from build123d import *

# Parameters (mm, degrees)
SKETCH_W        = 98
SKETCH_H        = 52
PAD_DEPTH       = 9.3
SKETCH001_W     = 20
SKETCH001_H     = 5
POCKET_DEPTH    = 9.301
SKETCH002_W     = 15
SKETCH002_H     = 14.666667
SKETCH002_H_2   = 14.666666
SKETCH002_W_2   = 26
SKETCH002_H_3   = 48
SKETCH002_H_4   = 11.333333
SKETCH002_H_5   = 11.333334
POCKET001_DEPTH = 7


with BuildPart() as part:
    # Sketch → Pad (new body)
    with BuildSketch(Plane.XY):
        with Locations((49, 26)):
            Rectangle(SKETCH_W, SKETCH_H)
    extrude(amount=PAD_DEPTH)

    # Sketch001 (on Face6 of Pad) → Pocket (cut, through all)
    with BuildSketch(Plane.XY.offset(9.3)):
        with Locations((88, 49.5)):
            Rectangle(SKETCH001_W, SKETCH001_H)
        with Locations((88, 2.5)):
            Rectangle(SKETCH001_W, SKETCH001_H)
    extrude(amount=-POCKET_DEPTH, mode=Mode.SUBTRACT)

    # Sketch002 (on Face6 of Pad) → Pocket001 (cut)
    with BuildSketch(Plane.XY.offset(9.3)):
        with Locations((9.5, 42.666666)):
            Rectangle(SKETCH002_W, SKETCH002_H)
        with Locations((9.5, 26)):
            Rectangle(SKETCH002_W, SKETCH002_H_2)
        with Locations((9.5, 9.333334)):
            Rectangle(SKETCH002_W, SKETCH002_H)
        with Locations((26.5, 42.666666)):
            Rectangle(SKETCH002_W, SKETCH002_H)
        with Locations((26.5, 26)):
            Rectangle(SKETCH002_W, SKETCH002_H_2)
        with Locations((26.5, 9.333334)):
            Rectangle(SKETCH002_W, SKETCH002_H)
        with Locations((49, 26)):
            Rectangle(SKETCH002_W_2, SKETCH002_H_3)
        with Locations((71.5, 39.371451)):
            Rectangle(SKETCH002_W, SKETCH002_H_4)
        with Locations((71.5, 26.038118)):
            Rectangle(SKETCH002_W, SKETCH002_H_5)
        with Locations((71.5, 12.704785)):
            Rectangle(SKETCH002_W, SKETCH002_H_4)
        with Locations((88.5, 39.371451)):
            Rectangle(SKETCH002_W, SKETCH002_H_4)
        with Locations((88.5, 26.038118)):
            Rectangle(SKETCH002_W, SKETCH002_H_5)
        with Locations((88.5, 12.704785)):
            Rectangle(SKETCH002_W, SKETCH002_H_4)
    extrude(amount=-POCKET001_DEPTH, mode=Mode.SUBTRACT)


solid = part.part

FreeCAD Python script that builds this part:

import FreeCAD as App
import Part
import Sketcher

V = App.Vector
Q = App.Units.Quantity

doc = App.newDocument("Part")
body = doc.addObject("PartDesign::Body", "Body")

sketch1 = body.newObject("Sketcher::SketchObject", "Sketch")
sketch1.AttachmentSupport = (doc.getObject("XY_Plane"), [""])
sketch1.MapMode = "FlatFace"
sketch1.addGeometry(Part.LineSegment(V(0, 52, 0), V(0, 0, 0)), False)
sketch1.addGeometry(Part.LineSegment(V(0, 0, 0), V(98, 0, 0)), False)
sketch1.addGeometry(Part.LineSegment(V(98, 0, 0), V(98, 52, 0)), False)
sketch1.addGeometry(Part.LineSegment(V(98, 52, 0), V(0, 52, 0)), False)
sketch1.addConstraint(Sketcher.Constraint("Coincident", 0, 2, 1, 1))
sketch1.addConstraint(Sketcher.Constraint("Coincident", 1, 2, 2, 1))
sketch1.addConstraint(Sketcher.Constraint("Coincident", 2, 2, 3, 1))
sketch1.addConstraint(Sketcher.Constraint("Coincident", 3, 2, 0, 1))
sketch1.addConstraint(Sketcher.Constraint("Vertical", 0))
sketch1.addConstraint(Sketcher.Constraint("Horizontal", 1))
sketch1.addConstraint(Sketcher.Constraint("Vertical", 2))
sketch1.addConstraint(Sketcher.Constraint("Horizontal", 3))
sketch1.addConstraint(Sketcher.Constraint("Coincident", 0, 2, -1, 1))
sketch1.addConstraint(Sketcher.Constraint("DistanceX", 1, 1, 1, 2, Q("98 mm")))
sketch1.addConstraint(Sketcher.Constraint("DistanceY", 0, 2, 0, 1, Q("52 mm")))
pad1 = body.newObject("PartDesign::Pad", "Pad")
pad1.Profile = sketch1
pad1.Length = 9.3

sketch2 = body.newObject("Sketcher::SketchObject", "Sketch001")
sketch2.AttachmentSupport = (doc.getObject("XY_Plane"), [""])
sketch2.MapMode = "FlatFace"
sketch2.AttachmentOffset = App.Placement(V(0, 0, 9.3), App.Rotation())
sketch2.addGeometry(Part.LineSegment(V(78, 52, 0), V(78, 47, 0)), False)
sketch2.addGeometry(Part.LineSegment(V(78, 47, 0), V(98, 47, 0)), False)
sketch2.addGeometry(Part.LineSegment(V(98, 47, 0), V(98, 52, 0)), False)
sketch2.addGeometry(Part.LineSegment(V(98, 52, 0), V(78, 52, 0)), False)
sketch2.addGeometry(Part.LineSegment(V(78, 5, 0), V(78, 0, 0)), False)
sketch2.addGeometry(Part.LineSegment(V(78, 0, 0), V(98, 0, 0)), False)
sketch2.addGeometry(Part.LineSegment(V(98, 0, 0), V(98, 5, 0)), False)
sketch2.addGeometry(Part.LineSegment(V(98, 5, 0), V(78, 5, 0)), False)
sketch2.addConstraint(Sketcher.Constraint("Coincident", 0, 2, 1, 1))
sketch2.addConstraint(Sketcher.Constraint("Coincident", 1, 2, 2, 1))
sketch2.addConstraint(Sketcher.Constraint("Coincident", 2, 2, 3, 1))
sketch2.addConstraint(Sketcher.Constraint("Coincident", 3, 2, 0, 1))
sketch2.addConstraint(Sketcher.Constraint("Coincident", 4, 2, 5, 1))
sketch2.addConstraint(Sketcher.Constraint("Coincident", 5, 2, 6, 1))
sketch2.addConstraint(Sketcher.Constraint("Coincident", 6, 2, 7, 1))
sketch2.addConstraint(Sketcher.Constraint("Coincident", 7, 2, 4, 1))
sketch2.addConstraint(Sketcher.Constraint("Vertical", 0))
sketch2.addConstraint(Sketcher.Constraint("Horizontal", 1))
sketch2.addConstraint(Sketcher.Constraint("Vertical", 2))
sketch2.addConstraint(Sketcher.Constraint("Horizontal", 3))
sketch2.addConstraint(Sketcher.Constraint("Vertical", 4))
sketch2.addConstraint(Sketcher.Constraint("Horizontal", 5))
sketch2.addConstraint(Sketcher.Constraint("Vertical", 6))
sketch2.addConstraint(Sketcher.Constraint("Horizontal", 7))
sketch2.addConstraint(Sketcher.Constraint("PointOnObject", 4, 2, -1))
sketch2.addConstraint(Sketcher.Constraint("Vertical", 3, 2, 4, 2))
sketch2.addConstraint(Sketcher.Constraint("Vertical", 2, 2, 5, 2))
sketch2.addConstraint(Sketcher.Constraint("Equal", 2, 4))
sketch2.addConstraint(Sketcher.Constraint("DistanceX", 1, 1, 1, 2, Q("20 mm")))
sketch2.addConstraint(Sketcher.Constraint("DistanceY", 0, 2, 0, 1, Q("5 mm")))
sketch2.addConstraint(Sketcher.Constraint("DistanceX", -1, 1, 0, 2, Q("78 mm")))
sketch2.addConstraint(Sketcher.Constraint("DistanceY", -1, 1, 0, 2, Q("47 mm")))
pocket1 = body.newObject("PartDesign::Pocket", "Pocket")
pocket1.Profile = sketch2
pocket1.Type = "ThroughAll"

sketch3 = body.newObject("Sketcher::SketchObject", "Sketch002")
sketch3.AttachmentSupport = (doc.getObject("XY_Plane"), [""])
sketch3.MapMode = "FlatFace"
sketch3.AttachmentOffset = App.Placement(V(0, 0, 9.3), App.Rotation())
sketch3.addGeometry(Part.LineSegment(V(2, 50, 0), V(2, 35, 0)), False)
sketch3.addGeometry(Part.LineSegment(V(2, 35, 0), V(17, 35, 0)), False)
sketch3.addGeometry(Part.LineSegment(V(17, 35, 0), V(17, 50, 0)), False)
sketch3.addGeometry(Part.LineSegment(V(17, 50, 0), V(2, 50, 0)), False)
sketch3.addGeometry(Part.LineSegment(V(2, 33, 0), V(2, 19, 0)), False)
sketch3.addGeometry(Part.LineSegment(V(2, 19, 0), V(17, 19, 0)), False)
sketch3.addGeometry(Part.LineSegment(V(17, 19, 0), V(17, 33, 0)), False)
sketch3.addGeometry(Part.LineSegment(V(17, 33, 0), V(2, 33, 0)), False)
sketch3.addGeometry(Part.LineSegment(V(2, 17, 0), V(2, 2, 0)), False)
sketch3.addGeometry(Part.LineSegment(V(2, 2, 0), V(17, 2, 0)), False)
sketch3.addGeometry(Part.LineSegment(V(17, 2, 0), V(17, 17, 0)), False)
sketch3.addGeometry(Part.LineSegment(V(17, 17, 0), V(2, 17, 0)), False)
sketch3.addGeometry(Part.LineSegment(V(19, 50, 0), V(19, 35, 0)), False)
sketch3.addGeometry(Part.LineSegment(V(19, 35, 0), V(34, 35, 0)), False)
sketch3.addGeometry(Part.LineSegment(V(34, 35, 0), V(34, 50, 0)), False)
sketch3.addGeometry(Part.LineSegment(V(34, 50, 0), V(19, 50, 0)), False)
sketch3.addGeometry(Part.LineSegment(V(19, 33, 0), V(19, 19, 0)), False)
sketch3.addGeometry(Part.LineSegment(V(19, 19, 0), V(34, 19, 0)), False)
sketch3.addGeometry(Part.LineSegment(V(34, 19, 0), V(34, 33, 0)), False)
sketch3.addGeometry(Part.LineSegment(V(34, 33, 0), V(19, 33, 0)), False)
sketch3.addGeometry(Part.LineSegment(V(19, 17, 0), V(19, 2, 0)), False)
sketch3.addGeometry(Part.LineSegment(V(19, 2, 0), V(34, 2, 0)), False)
sketch3.addGeometry(Part.LineSegment(V(34, 2, 0), V(34, 17, 0)), False)
sketch3.addGeometry(Part.LineSegment(V(34, 17, 0), V(19, 17, 0)), False)
sketch3.addGeometry(Part.LineSegment(V(36, 50, 0), V(36, 2, 0)), False)
sketch3.addGeometry(Part.LineSegment(V(36, 2, 0), V(62, 2, 0)), False)
sketch3.addGeometry(Part.LineSegment(V(62, 2, 0), V(62, 50, 0)), False)
sketch3.addGeometry(Part.LineSegment(V(62, 50, 0), V(36, 50, 0)), False)
sketch3.addGeometry(Part.LineSegment(V(64, 45, 0), V(64, 34, 0)), False)
sketch3.addGeometry(Part.LineSegment(V(64, 34, 0), V(79, 34, 0)), False)
sketch3.addGeometry(Part.LineSegment(V(79, 34, 0), V(79, 45, 0)), False)
sketch3.addGeometry(Part.LineSegment(V(79, 45, 0), V(64, 45, 0)), False)
sketch3.addGeometry(Part.LineSegment(V(64, 32, 0), V(64, 20, 0)), False)
sketch3.addGeometry(Part.LineSegment(V(64, 20, 0), V(79, 20, 0)), False)
sketch3.addGeometry(Part.LineSegment(V(79, 20, 0), V(79, 32, 0)), False)
sketch3.addGeometry(Part.LineSegment(V(79, 32, 0), V(64, 32, 0)), False)
sketch3.addGeometry(Part.LineSegment(V(64, 18, 0), V(64, 7, 0)), False)
sketch3.addGeometry(Part.LineSegment(V(64, 7, 0), V(79, 7, 0)), False)
sketch3.addGeometry(Part.LineSegment(V(79, 7, 0), V(79, 18, 0)), False)
sketch3.addGeometry(Part.LineSegment(V(79, 18, 0), V(64, 18, 0)), False)
sketch3.addGeometry(Part.LineSegment(V(81, 45, 0), V(81, 34, 0)), False)
sketch3.addGeometry(Part.LineSegment(V(81, 34, 0), V(96, 34, 0)), False)
sketch3.addGeometry(Part.LineSegment(V(96, 34, 0), V(96, 45, 0)), False)
sketch3.addGeometry(Part.LineSegment(V(96, 45, 0), V(81, 45, 0)), False)
sketch3.addGeometry(Part.LineSegment(V(81, 32, 0), V(81, 20, 0)), False)
sketch3.addGeometry(Part.LineSegment(V(81, 20, 0), V(96, 20, 0)), False)
sketch3.addGeometry(Part.LineSegment(V(96, 20, 0), V(96, 32, 0)), False)
sketch3.addGeometry(Part.LineSegment(V(96, 32, 0), V(81, 32, 0)), False)
sketch3.addGeometry(Part.LineSegment(V(81, 18, 0), V(81, 7, 0)), False)
sketch3.addGeometry(Part.LineSegment(V(81, 7, 0), V(96, 7, 0)), False)
sketch3.addGeometry(Part.LineSegment(V(96, 7, 0), V(96, 18, 0)), False)
sketch3.addGeometry(Part.LineSegment(V(96, 18, 0), V(81, 18, 0)), False)
sketch3.addConstraint(Sketcher.Constraint("Coincident", 0, 2, 1, 1))
sketch3.addConstraint(Sketcher.Constraint("Coincident", 1, 2, 2, 1))
sketch3.addConstraint(Sketcher.Constraint("Coincident", 2, 2, 3, 1))
sketch3.addConstraint(Sketcher.Constraint("Coincident", 3, 2, 0, 1))
sketch3.addConstraint(Sketcher.Constraint("Coincident", 4, 2, 5, 1))
sketch3.addConstraint(Sketcher.Constraint("Coincident", 5, 2, 6, 1))
sketch3.addConstraint(Sketcher.Constraint("Coincident", 6, 2, 7, 1))
sketch3.addConstraint(Sketcher.Constraint("Coincident", 7, 2, 4, 1))
sketch3.addConstraint(Sketcher.Constraint("Coincident", 8, 2, 9, 1))
sketch3.addConstraint(Sketcher.Constraint("Coincident", 9, 2, 10, 1))
sketch3.addConstraint(Sketcher.Constraint("Coincident", 10, 2, 11, 1))
sketch3.addConstraint(Sketcher.Constraint("Coincident", 11, 2, 8, 1))
sketch3.addConstraint(Sketcher.Constraint("Coincident", 12, 2, 13, 1))
sketch3.addConstraint(Sketcher.Constraint("Coincident", 13, 2, 14, 1))
sketch3.addConstraint(Sketcher.Constraint("Coincident", 14, 2, 15, 1))
sketch3.addConstraint(Sketcher.Constraint("Coincident", 15, 2, 12, 1))
sketch3.addConstraint(Sketcher.Constraint("Coincident", 16, 2, 17, 1))
sketch3.addConstraint(Sketcher.Constraint("Coincident", 17, 2, 18, 1))
sketch3.addConstraint(Sketcher.Constraint("Coincident", 18, 2, 19, 1))
sketch3.addConstraint(Sketcher.Constraint("Coincident", 19, 2, 16, 1))
sketch3.addConstraint(Sketcher.Constraint("Coincident", 20, 2, 21, 1))
sketch3.addConstraint(Sketcher.Constraint("Coincident", 21, 2, 22, 1))
sketch3.addConstraint(Sketcher.Constraint("Coincident", 22, 2, 23, 1))
sketch3.addConstraint(Sketcher.Constraint("Coincident", 23, 2, 20, 1))
sketch3.addConstraint(Sketcher.Constraint("Coincident", 24, 2, 25, 1))
sketch3.addConstraint(Sketcher.Constraint("Coincident", 25, 2, 26, 1))
sketch3.addConstraint(Sketcher.Constraint("Coincident", 26, 2, 27, 1))
sketch3.addConstraint(Sketcher.Constraint("Coincident", 27, 2, 24, 1))
sketch3.addConstraint(Sketcher.Constraint("Coincident", 28, 2, 29, 1))
sketch3.addConstraint(Sketcher.Constraint("Coincident", 29, 2, 30, 1))
sketch3.addConstraint(Sketcher.Constraint("Coincident", 30, 2, 31, 1))
sketch3.addConstraint(Sketcher.Constraint("Coincident", 31, 2, 28, 1))
sketch3.addConstraint(Sketcher.Constraint("Coincident", 32, 2, 33, 1))
sketch3.addConstraint(Sketcher.Constraint("Coincident", 33, 2, 34, 1))
sketch3.addConstraint(Sketcher.Constraint("Coincident", 34, 2, 35, 1))
sketch3.addConstraint(Sketcher.Constraint("Coincident", 35, 2, 32, 1))
sketch3.addConstraint(Sketcher.Constraint("Coincident", 36, 2, 37, 1))
sketch3.addConstraint(Sketcher.Constraint("Coincident", 37, 2, 38, 1))
sketch3.addConstraint(Sketcher.Constraint("Coincident", 38, 2, 39, 1))
sketch3.addConstraint(Sketcher.Constraint("Coincident", 39, 2, 36, 1))
sketch3.addConstraint(Sketcher.Constraint("Coincident", 40, 2, 41, 1))
sketch3.addConstraint(Sketcher.Constraint("Coincident", 41, 2, 42, 1))
sketch3.addConstraint(Sketcher.Constraint("Coincident", 42, 2, 43, 1))
sketch3.addConstraint(Sketcher.Constraint("Coincident", 43, 2, 40, 1))
sketch3.addConstraint(Sketcher.Constraint("Coincident", 44, 2, 45, 1))
sketch3.addConstraint(Sketcher.Constraint("Coincident", 45, 2, 46, 1))
sketch3.addConstraint(Sketcher.Constraint("Coincident", 46, 2, 47, 1))
sketch3.addConstraint(Sketcher.Constraint("Coincident", 47, 2, 44, 1))
sketch3.addConstraint(Sketcher.Constraint("Coincident", 48, 2, 49, 1))
sketch3.addConstraint(Sketcher.Constraint("Coincident", 49, 2, 50, 1))
sketch3.addConstraint(Sketcher.Constraint("Coincident", 50, 2, 51, 1))
sketch3.addConstraint(Sketcher.Constraint("Coincident", 51, 2, 48, 1))
sketch3.addConstraint(Sketcher.Constraint("Vertical", 0))
sketch3.addConstraint(Sketcher.Constraint("Horizontal", 1))
sketch3.addConstraint(Sketcher.Constraint("Vertical", 2))
sketch3.addConstraint(Sketcher.Constraint("Horizontal", 3))
sketch3.addConstraint(Sketcher.Constraint("Vertical", 4))
sketch3.addConstraint(Sketcher.Constraint("Horizontal", 5))
sketch3.addConstraint(Sketcher.Constraint("Vertical", 6))
sketch3.addConstraint(Sketcher.Constraint("Horizontal", 7))
sketch3.addConstraint(Sketcher.Constraint("Vertical", 8))
sketch3.addConstraint(Sketcher.Constraint("Horizontal", 9))
sketch3.addConstraint(Sketcher.Constraint("Vertical", 10))
sketch3.addConstraint(Sketcher.Constraint("Horizontal", 11))
sketch3.addConstraint(Sketcher.Constraint("Vertical", 12))
sketch3.addConstraint(Sketcher.Constraint("Horizontal", 13))
sketch3.addConstraint(Sketcher.Constraint("Vertical", 14))
sketch3.addConstraint(Sketcher.Constraint("Horizontal", 15))
sketch3.addConstraint(Sketcher.Constraint("Vertical", 16))
sketch3.addConstraint(Sketcher.Constraint("Horizontal", 17))
sketch3.addConstraint(Sketcher.Constraint("Vertical", 18))
sketch3.addConstraint(Sketcher.Constraint("Horizontal", 19))
sketch3.addConstraint(Sketcher.Constraint("Vertical", 20))
sketch3.addConstraint(Sketcher.Constraint("Horizontal", 21))
sketch3.addConstraint(Sketcher.Constraint("Vertical", 22))
sketch3.addConstraint(Sketcher.Constraint("Horizontal", 23))
sketch3.addConstraint(Sketcher.Constraint("Vertical", 24))
sketch3.addConstraint(Sketcher.Constraint("Horizontal", 25))
sketch3.addConstraint(Sketcher.Constraint("Vertical", 26))
sketch3.addConstraint(Sketcher.Constraint("Horizontal", 27))
sketch3.addConstraint(Sketcher.Constraint("Vertical", 28))
sketch3.addConstraint(Sketcher.Constraint("Horizontal", 29))
sketch3.addConstraint(Sketcher.Constraint("Vertical", 30))
sketch3.addConstraint(Sketcher.Constraint("Horizontal", 31))
sketch3.addConstraint(Sketcher.Constraint("Vertical", 32))
sketch3.addConstraint(Sketcher.Constraint("Horizontal", 33))
sketch3.addConstraint(Sketcher.Constraint("Vertical", 34))
sketch3.addConstraint(Sketcher.Constraint("Horizontal", 35))
sketch3.addConstraint(Sketcher.Constraint("Vertical", 36))
sketch3.addConstraint(Sketcher.Constraint("Horizontal", 37))
sketch3.addConstraint(Sketcher.Constraint("Vertical", 38))
sketch3.addConstraint(Sketcher.Constraint("Horizontal", 39))
sketch3.addConstraint(Sketcher.Constraint("Vertical", 40))
sketch3.addConstraint(Sketcher.Constraint("Horizontal", 41))
sketch3.addConstraint(Sketcher.Constraint("Vertical", 42))
sketch3.addConstraint(Sketcher.Constraint("Horizontal", 43))
sketch3.addConstraint(Sketcher.Constraint("Vertical", 44))
sketch3.addConstraint(Sketcher.Constraint("Horizontal", 45))
sketch3.addConstraint(Sketcher.Constraint("Vertical", 46))
sketch3.addConstraint(Sketcher.Constraint("Horizontal", 47))
sketch3.addConstraint(Sketcher.Constraint("Vertical", 48))
sketch3.addConstraint(Sketcher.Constraint("Horizontal", 49))
sketch3.addConstraint(Sketcher.Constraint("Vertical", 50))
sketch3.addConstraint(Sketcher.Constraint("Horizontal", 51))
sketch3.addConstraint(Sketcher.Constraint("Horizontal", 1, 2, 12, 2))
sketch3.addConstraint(Sketcher.Constraint("Horizontal", 3, 2, 14, 2))
sketch3.addConstraint(Sketcher.Constraint("Horizontal", 5, 2, 16, 2))
sketch3.addConstraint(Sketcher.Constraint("Horizontal", 7, 2, 18, 2))
sketch3.addConstraint(Sketcher.Constraint("Horizontal", 9, 2, 20, 2))
sketch3.addConstraint(Sketcher.Constraint("Horizontal", 11, 2, 22, 2))
sketch3.addConstraint(Sketcher.Constraint("Horizontal", 21, 2, 24, 2))
sketch3.addConstraint(Sketcher.Constraint("Horizontal", 15, 2, 26, 2))
sketch3.addConstraint(Sketcher.Constraint("Horizontal", 29, 2, 40, 2))
sketch3.addConstraint(Sketcher.Constraint("Horizontal", 31, 2, 42, 2))
sketch3.addConstraint(Sketcher.Constraint("Horizontal", 33, 2, 44, 2))
sketch3.addConstraint(Sketcher.Constraint("Horizontal", 35, 2, 46, 2))
sketch3.addConstraint(Sketcher.Constraint("Horizontal", 37, 2, 48, 2))
sketch3.addConstraint(Sketcher.Constraint("Horizontal", 39, 2, 50, 2))
sketch3.addConstraint(Sketcher.Constraint("Vertical", 3, 2, 4, 2))
sketch3.addConstraint(Sketcher.Constraint("Vertical", 2, 2, 5, 2))
sketch3.addConstraint(Sketcher.Constraint("Vertical", 7, 2, 8, 2))
sketch3.addConstraint(Sketcher.Constraint("Vertical", 6, 2, 9, 2))
sketch3.addConstraint(Sketcher.Constraint("Vertical", 15, 2, 16, 2))
sketch3.addConstraint(Sketcher.Constraint("Vertical", 14, 2, 17, 2))
sketch3.addConstraint(Sketcher.Constraint("Vertical", 19, 2, 20, 2))
sketch3.addConstraint(Sketcher.Constraint("Vertical", 18, 2, 21, 2))
sketch3.addConstraint(Sketcher.Constraint("Vertical", 31, 2, 32, 2))
sketch3.addConstraint(Sketcher.Constraint("Vertical", 30, 2, 33, 2))
sketch3.addConstraint(Sketcher.Constraint("Vertical", 35, 2, 36, 2))
sketch3.addConstraint(Sketcher.Constraint("Vertical", 34, 2, 37, 2))
sketch3.addConstraint(Sketcher.Constraint("Vertical", 43, 2, 44, 2))
sketch3.addConstraint(Sketcher.Constraint("Vertical", 42, 2, 45, 2))
sketch3.addConstraint(Sketcher.Constraint("Vertical", 47, 2, 48, 2))
sketch3.addConstraint(Sketcher.Constraint("Vertical", 46, 2, 49, 2))
sketch3.addConstraint(Sketcher.Constraint("Equal", 11, 13))
sketch3.addConstraint(Sketcher.Constraint("Equal", 23, 29))
sketch3.addConstraint(Sketcher.Constraint("Equal", 39, 41))
sketch3.addConstraint(Sketcher.Constraint("Equal", 2, 4))
sketch3.addConstraint(Sketcher.Constraint("Equal", 6, 8))
sketch3.addConstraint(Sketcher.Constraint("Equal", 30, 32))
sketch3.addConstraint(Sketcher.Constraint("Equal", 34, 36))
sketch3.addConstraint(Sketcher.Constraint("DistanceX", 1, 1, 1, 2, Q("15 mm")))
sketch3.addConstraint(Sketcher.Constraint("DistanceX", 25, 1, 25, 2, Q("26 mm")))
sketch3.addConstraint(Sketcher.Constraint("DistanceY", 24, 2, 24, 1, Q("48 mm")))
sketch3.addConstraint(Sketcher.Constraint("DistanceX", -1, 1, 0, 2, Q("2 mm")))
sketch3.addConstraint(Sketcher.Constraint("DistanceY", -1, 1, 2, 2, Q("50 mm")))
sketch3.addConstraint(Sketcher.Constraint("DistanceX", -1, 1, 12, 2, Q("19 mm")))
sketch3.addConstraint(Sketcher.Constraint("DistanceX", -1, 1, 24, 2, Q("36 mm")))
sketch3.addConstraint(Sketcher.Constraint("DistanceX", -1, 1, 28, 2, Q("64 mm")))
sketch3.addConstraint(Sketcher.Constraint("DistanceX", -1, 1, 40, 2, Q("81 mm")))
sketch3.addConstraint(Sketcher.Constraint("DistanceY", 6, 2, 1, 2, Q("1.999999 mm")))
sketch3.addConstraint(Sketcher.Constraint("DistanceY", 10, 2, 5, 2, Q("2 mm")))
sketch3.addConstraint(Sketcher.Constraint("DistanceY", 34, 2, 29, 2, Q("2 mm")))
sketch3.addConstraint(Sketcher.Constraint("DistanceY", 38, 2, 33, 2, Q("2 mm")))
sketch3.addConstraint(Sketcher.Constraint("DistanceY", 28, 2, 28, 1, Q("11.333333 mm")))
sketch3.addConstraint(Sketcher.Constraint("DistanceY", -1, 1, 32, 2, Q("20.371451 mm")))
pocket2 = body.newObject("PartDesign::Pocket", "Pocket001")
pocket2.Profile = sketch3
pocket2.Length = 7

doc.recompute()
